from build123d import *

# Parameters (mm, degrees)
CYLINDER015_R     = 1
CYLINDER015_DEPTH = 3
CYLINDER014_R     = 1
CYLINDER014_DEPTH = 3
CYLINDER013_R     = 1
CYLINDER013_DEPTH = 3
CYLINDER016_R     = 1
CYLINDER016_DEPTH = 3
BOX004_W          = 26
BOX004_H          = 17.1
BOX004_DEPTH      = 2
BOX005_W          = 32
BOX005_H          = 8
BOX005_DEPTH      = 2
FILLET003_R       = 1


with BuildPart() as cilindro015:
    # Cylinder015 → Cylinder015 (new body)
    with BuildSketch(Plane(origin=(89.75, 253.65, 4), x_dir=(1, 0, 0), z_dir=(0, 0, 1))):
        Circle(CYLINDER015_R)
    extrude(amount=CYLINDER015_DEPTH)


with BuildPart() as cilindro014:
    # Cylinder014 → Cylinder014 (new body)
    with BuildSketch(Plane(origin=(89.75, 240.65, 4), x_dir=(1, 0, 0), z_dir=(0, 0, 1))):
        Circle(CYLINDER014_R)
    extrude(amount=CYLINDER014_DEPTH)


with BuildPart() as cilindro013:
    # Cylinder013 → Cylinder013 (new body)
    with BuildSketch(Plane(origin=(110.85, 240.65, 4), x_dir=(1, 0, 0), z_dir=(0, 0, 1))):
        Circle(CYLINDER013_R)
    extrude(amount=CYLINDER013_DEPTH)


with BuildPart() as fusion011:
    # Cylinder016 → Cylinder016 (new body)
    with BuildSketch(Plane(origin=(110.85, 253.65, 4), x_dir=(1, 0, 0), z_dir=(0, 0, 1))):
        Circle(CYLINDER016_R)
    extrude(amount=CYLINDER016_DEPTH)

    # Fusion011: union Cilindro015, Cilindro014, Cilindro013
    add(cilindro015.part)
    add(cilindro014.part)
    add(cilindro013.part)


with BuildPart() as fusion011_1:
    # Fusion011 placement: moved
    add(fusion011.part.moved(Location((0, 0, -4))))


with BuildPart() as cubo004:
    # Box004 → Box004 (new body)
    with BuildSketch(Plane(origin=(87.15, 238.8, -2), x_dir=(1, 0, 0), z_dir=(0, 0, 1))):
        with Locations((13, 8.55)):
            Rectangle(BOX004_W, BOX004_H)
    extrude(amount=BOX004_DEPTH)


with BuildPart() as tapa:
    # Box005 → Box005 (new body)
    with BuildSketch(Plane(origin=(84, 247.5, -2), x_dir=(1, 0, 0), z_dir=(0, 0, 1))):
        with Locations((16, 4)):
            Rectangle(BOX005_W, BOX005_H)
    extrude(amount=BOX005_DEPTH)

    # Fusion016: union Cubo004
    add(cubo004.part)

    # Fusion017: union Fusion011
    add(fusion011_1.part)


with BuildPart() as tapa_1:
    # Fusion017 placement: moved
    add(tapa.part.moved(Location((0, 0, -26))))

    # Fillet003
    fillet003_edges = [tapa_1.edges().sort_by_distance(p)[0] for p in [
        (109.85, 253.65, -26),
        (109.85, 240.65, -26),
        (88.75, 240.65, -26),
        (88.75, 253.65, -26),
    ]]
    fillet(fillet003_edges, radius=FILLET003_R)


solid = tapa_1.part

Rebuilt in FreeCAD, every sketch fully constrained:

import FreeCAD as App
import Part
import Sketcher
from FreeCAD import Vector
Q = App.Units.Quantity


def edges_at(feature, points):
    """Names of the edges that pass closest to the given points."""
    edges = feature.Shape.Edges
    near = lambda p: min(range(len(edges)), key=lambda i: edges[i].distToShape(Part.Vertex(*p))[0])
    return sorted({f"Edge{near(p) + 1}" for p in points})


def add_polygon(sketch, points):
    """Adds a closed chain of lines whose ends are joined by coincident constraints."""
    first, n = sketch.GeometryCount, len(points)
    for a, b in zip(points, points[1:] + points[:1]):
        sketch.addGeometry(Part.LineSegment(App.Vector(*a, 0), App.Vector(*b, 0)), False)
    for i in range(n):
        sketch.addConstraint(Sketcher.Constraint("Coincident", first + i, 2, first + (i + 1) % n, 1))

doc = App.newDocument("Part")
body = doc.addObject("PartDesign::Body", "Body")

# Sketch on XY plane
sketch1 = body.newObject("Sketcher::SketchObject", "Sketch")
sketch1.AttachmentSupport = (doc.getObject("XY_Plane"), [""])
sketch1.MapMode = "FlatFace"
sketch1.AttachmentOffset = App.Placement(Vector(0, 0, 4), App.Rotation())
sketch1.addGeometry(Part.Circle(Vector(89.8, 253.7, 0), Vector(0, 0, 1), 1), False)
sketch1.addConstraint([
    Sketcher.Constraint("Diameter", 0, Q("2 mm")),
    Sketcher.Constraint("DistanceX", -1, 1, 0, 3, Q("89.75 mm")),
    Sketcher.Constraint("DistanceY", -1, 1, 0, 3, Q("253.65 mm")),
])
pad1 = body.newObject("PartDesign::Pad", "Pad")
pad1.Profile = sketch1
pad1.Length = 3
body2 = doc.addObject("PartDesign::Body", "Body001")

# Sketch on XY plane
sketch2 = body2.newObject("Sketcher::SketchObject", "Sketch001")
sketch2.AttachmentSupport = (doc.getObject("XY_Plane001"), [""])
sketch2.MapMode = "FlatFace"
sketch2.AttachmentOffset = App.Placement(Vector(0, 0, 4), App.Rotation())
sketch2.addGeometry(Part.Circle(Vector(89.8, 240.7, 0), Vector(0, 0, 1), 1), False)
sketch2.addConstraint([
    Sketcher.Constraint("Diameter", 0, Q("2 mm")),
    Sketcher.Constraint("DistanceX", -1, 1, 0, 3, Q("89.75 mm")),
    Sketcher.Constraint("DistanceY", -1, 1, 0, 3, Q("240.65 mm")),
])
pad2 = body2.newObject("PartDesign::Pad", "Pad001")
pad2.Profile = sketch2
pad2.Length = 3
body3 = doc.addObject("PartDesign::Body", "Body002")

# Sketch on XY plane
sketch3 = body3.newObject("Sketcher::SketchObject", "Sketch002")
sketch3.AttachmentSupport = (doc.getObject("XY_Plane002"), [""])
sketch3.MapMode = "FlatFace"
sketch3.AttachmentOffset = App.Placement(Vector(0, 0, 4), App.Rotation())
sketch3.addGeometry(Part.Circle(Vector(110.8, 240.7, 0), Vector(0, 0, 1), 1), False)
sketch3.addConstraint([
    Sketcher.Constraint("Diameter", 0, Q("2 mm")),
    Sketcher.Constraint("DistanceX", -1, 1, 0, 3, Q("110.85 mm")),
    Sketcher.Constraint("DistanceY", -1, 1, 0, 3, Q("240.65 mm")),
])
pad3 = body3.newObject("PartDesign::Pad", "Pad002")
pad3.Profile = sketch3
pad3.Length = 3
body4 = doc.addObject("PartDesign::Body", "Body003")
body4.AllowCompound = True

# Sketch on XY plane
sketch4 = body4.newObject("Sketcher::SketchObject", "Sketch003")
sketch4.AttachmentSupport = (doc.getObject("XY_Plane003"), [""])
sketch4.MapMode = "FlatFace"
sketch4.AttachmentOffset = App.Placement(Vector(0, 0, 4), App.Rotation())
sketch4.addGeometry(Part.Circle(Vector(110.8, 253.7, 0), Vector(0, 0, 1), 1), False)
sketch4.addConstraint([
    Sketcher.Constraint("Diameter", 0, Q("2 mm")),
    Sketcher.Constraint("DistanceX", -1, 1, 0, 3, Q("110.85 mm")),
    Sketcher.Constraint("DistanceY", -1, 1, 0, 3, Q("253.65 mm")),
])
pad4 = body4.newObject("PartDesign::Pad", "Pad003")
pad4.Profile = sketch4
pad4.Length = 3
doc.recompute()

boolean = body4.newObject("PartDesign::Boolean", "Boolean")
boolean.Type = "Fuse"
boolean.addObjects([body])
doc.recompute()

boolean2 = body4.newObject("PartDesign::Boolean", "Boolean001")
boolean2.Type = "Fuse"
boolean2.addObjects([body2])
doc.recompute()

boolean3 = body4.newObject("PartDesign::Boolean", "Boolean002")
boolean3.Type = "Fuse"
boolean3.addObjects([body3])
body5 = doc.addObject("PartDesign::Body", "Body004")
body5.AllowCompound = True
doc.recompute()

body4.Placement = App.Placement(Vector(0, 0, -4), App.Rotation(Vector(0, 0, 1), 0))
boolean4 = body5.newObject("PartDesign::Boolean", "Boolean003")
boolean4.Type = "Fuse"
boolean4.addObjects([body4])
body6 = doc.addObject("PartDesign::Body", "Body005")

# Sketch on XY plane
sketch5 = body6.newObject("Sketcher::SketchObject", "Sketch004")
sketch5.AttachmentSupport = (doc.getObject("XY_Plane005"), [""])
sketch5.MapMode = "FlatFace"
sketch5.AttachmentOffset = App.Placement(Vector(0, 0, -2), App.Rotation())
add_polygon(sketch5, [(87, 256), (87, 239), (113, 239), (113, 256)])  # lines 0-3
sketch5.addConstraint([
    Sketcher.Constraint("Vertical", 0),
    Sketcher.Constraint("Horizontal", 1),
    Sketcher.Constraint("Vertical", 2),
    Sketcher.Constraint("Horizontal", 3),
    Sketcher.Constraint("DistanceX", 1, 1, 1, 2, Q("26 mm")),
    Sketcher.Constraint("DistanceY", 0, 2, 0, 1, Q("17.1 mm")),
    Sketcher.Constraint("DistanceY", -1, 1, 0, 2, Q("238.8 mm")),
    Sketcher.Constraint("DistanceX", -1, 1, 0, 2, Q("87.15 mm")),
])
pad5 = body6.newObject("PartDesign::Pad", "Pad004")
pad5.Profile = sketch5
pad5.Length = 2
body7 = doc.addObject("PartDesign::Body", "Body006")

# Sketch on XY plane
sketch6 = body7.newObject("Sketcher::SketchObject", "Sketch005")
sketch6.AttachmentSupport = (doc.getObject("XY_Plane006"), [""])
sketch6.MapMode = "FlatFace"
sketch6.AttachmentOffset = App.Placement(Vector(0, 0, -2), App.Rotation())
add_polygon(sketch6, [(84, 256), (84, 248), (116, 248), (116, 256)])  # lines 0-3
sketch6.addConstraint([
    Sketcher.Constraint("Vertical", 0),
    Sketcher.Constraint("Horizontal", 1),
    Sketcher.Constraint("Vertical", 2),
    Sketcher.Constraint("Horizontal", 3),
    Sketcher.Constraint("DistanceX", 1, 1, 1, 2, Q("32 mm")),
    Sketcher.Constraint("DistanceY", 0, 2, 0, 1, Q("8 mm")),
    Sketcher.Constraint("DistanceX", -1, 1, 0, 2, Q("84 mm")),
    Sketcher.Constraint("DistanceY", -1, 1, 0, 2, Q("247.5 mm")),
])
pad6 = body7.newObject("PartDesign::Pad", "Pad005")
pad6.Profile = sketch6
pad6.Length = 2
doc.recompute()

boolean5 = body7.newObject("PartDesign::Boolean", "Boolean004")
boolean5.Type = "Fuse"
boolean5.addObjects([body6])
doc.recompute()

boolean6 = body7.newObject("PartDesign::Boolean", "Boolean005")
boolean6.Type = "Fuse"
boolean6.addObjects([body5])
body8 = doc.addObject("PartDesign::Body", "Body007")
doc.recompute()

body7.Placement = App.Placement(Vector(0, 0, -26), App.Rotation(Vector(0, 0, 1), 0))
boolean7 = body8.newObject("PartDesign::Boolean", "Boolean006")
boolean7.Type = "Fuse"
boolean7.addObjects([body7])
doc.recompute()

fillet = body8.newObject("PartDesign::Fillet", "Fillet")
fillet.Base = (boolean7, edges_at(boolean7, [
    (109.85, 253.65, -26),
    (109.85, 240.65, -26),
    (88.75, 240.65, -26),
    (88.75, 253.65, -26),
]))
fillet.Radius = 1

doc.recompute()
